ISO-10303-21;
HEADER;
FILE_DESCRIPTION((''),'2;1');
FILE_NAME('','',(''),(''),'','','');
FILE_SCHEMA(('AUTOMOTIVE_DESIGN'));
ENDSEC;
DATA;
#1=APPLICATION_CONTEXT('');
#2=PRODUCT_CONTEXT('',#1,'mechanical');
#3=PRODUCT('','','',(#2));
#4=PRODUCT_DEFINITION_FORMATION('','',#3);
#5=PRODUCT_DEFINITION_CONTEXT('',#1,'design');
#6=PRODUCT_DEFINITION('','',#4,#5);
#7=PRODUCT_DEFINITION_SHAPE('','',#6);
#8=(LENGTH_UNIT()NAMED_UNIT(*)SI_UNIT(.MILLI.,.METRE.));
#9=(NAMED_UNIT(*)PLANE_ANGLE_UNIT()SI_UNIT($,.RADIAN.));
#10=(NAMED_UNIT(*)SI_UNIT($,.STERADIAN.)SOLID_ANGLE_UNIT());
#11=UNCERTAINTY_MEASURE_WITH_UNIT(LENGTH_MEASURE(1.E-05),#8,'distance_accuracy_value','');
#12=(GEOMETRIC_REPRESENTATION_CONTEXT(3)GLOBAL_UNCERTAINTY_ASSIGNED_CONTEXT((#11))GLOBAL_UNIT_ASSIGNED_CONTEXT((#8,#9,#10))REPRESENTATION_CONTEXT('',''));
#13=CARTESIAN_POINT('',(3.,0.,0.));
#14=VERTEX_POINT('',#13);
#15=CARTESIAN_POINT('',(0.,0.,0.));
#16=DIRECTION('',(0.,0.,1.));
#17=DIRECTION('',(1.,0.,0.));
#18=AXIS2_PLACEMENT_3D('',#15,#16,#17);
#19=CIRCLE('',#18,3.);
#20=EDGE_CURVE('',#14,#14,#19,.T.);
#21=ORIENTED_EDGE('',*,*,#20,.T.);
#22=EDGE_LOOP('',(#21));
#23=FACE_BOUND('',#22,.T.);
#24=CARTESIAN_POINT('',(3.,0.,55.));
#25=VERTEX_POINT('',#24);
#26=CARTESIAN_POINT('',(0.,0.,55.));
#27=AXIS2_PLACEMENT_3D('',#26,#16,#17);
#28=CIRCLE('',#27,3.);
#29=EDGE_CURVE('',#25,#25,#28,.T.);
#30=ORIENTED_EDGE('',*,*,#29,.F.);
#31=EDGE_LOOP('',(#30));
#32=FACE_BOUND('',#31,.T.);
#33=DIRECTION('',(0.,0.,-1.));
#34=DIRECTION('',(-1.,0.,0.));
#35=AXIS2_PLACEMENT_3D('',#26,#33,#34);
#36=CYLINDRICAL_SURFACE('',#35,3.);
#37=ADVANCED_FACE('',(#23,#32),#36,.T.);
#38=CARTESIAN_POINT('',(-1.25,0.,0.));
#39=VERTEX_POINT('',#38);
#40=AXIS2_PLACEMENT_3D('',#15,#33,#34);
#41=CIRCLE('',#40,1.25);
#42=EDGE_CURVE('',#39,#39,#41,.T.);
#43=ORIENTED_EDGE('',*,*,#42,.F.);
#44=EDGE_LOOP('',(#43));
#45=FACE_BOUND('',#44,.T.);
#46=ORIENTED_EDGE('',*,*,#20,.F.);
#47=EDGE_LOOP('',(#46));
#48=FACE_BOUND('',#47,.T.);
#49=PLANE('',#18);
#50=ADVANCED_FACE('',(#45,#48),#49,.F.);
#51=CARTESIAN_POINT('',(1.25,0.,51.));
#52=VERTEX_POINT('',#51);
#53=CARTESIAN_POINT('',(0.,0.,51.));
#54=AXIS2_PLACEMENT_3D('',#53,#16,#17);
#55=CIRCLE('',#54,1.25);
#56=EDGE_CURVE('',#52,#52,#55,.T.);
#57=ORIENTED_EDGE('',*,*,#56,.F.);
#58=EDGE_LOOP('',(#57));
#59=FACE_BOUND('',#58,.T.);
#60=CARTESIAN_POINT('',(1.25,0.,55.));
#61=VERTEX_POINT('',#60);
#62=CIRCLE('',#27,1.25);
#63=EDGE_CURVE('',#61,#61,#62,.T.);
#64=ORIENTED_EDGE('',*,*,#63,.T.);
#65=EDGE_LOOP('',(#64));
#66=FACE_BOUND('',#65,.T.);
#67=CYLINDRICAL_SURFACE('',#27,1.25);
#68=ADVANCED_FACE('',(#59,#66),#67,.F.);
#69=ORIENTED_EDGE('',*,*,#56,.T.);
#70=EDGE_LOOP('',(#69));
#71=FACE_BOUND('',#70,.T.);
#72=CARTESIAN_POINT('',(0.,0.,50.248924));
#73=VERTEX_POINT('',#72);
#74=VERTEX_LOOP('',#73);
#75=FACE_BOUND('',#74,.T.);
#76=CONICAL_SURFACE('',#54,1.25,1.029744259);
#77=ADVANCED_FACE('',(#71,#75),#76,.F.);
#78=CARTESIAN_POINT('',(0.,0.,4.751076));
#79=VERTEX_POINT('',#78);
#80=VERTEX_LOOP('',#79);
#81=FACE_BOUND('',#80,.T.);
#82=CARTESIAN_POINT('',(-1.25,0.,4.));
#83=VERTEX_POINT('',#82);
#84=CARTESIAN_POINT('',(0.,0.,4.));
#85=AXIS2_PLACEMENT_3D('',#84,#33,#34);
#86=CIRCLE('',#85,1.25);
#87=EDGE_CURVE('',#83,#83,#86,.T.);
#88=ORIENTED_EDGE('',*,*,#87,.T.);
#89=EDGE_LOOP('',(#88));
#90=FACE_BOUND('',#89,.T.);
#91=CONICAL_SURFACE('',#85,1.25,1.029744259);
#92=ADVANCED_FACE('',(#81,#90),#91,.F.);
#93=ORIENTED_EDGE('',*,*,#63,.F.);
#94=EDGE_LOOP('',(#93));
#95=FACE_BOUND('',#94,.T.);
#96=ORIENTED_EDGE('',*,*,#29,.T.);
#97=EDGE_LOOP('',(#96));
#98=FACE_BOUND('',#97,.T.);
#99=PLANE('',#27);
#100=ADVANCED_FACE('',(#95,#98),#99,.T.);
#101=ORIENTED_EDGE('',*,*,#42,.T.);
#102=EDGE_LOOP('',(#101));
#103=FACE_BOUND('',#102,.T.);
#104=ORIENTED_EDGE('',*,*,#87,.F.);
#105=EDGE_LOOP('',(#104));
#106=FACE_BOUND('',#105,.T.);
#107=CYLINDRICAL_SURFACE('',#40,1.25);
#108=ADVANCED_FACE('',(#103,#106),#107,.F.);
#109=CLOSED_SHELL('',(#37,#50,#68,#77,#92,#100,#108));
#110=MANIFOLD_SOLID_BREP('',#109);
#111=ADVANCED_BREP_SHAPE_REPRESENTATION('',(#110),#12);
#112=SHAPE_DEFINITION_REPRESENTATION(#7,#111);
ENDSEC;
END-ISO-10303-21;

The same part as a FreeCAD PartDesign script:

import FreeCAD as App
import Part
import Sketcher
Q = App.Units.Quantity

doc = App.newDocument("Part")
body = doc.addObject("PartDesign::Body", "Body")

# Sketch on XY plane
sketch1 = body.newObject("Sketcher::SketchObject", "Sketch")
sketch1.AttachmentSupport = (doc.getObject("XY_Plane"), [""])
sketch1.MapMode = "FlatFace"
sketch1.addGeometry(Part.Circle(App.Vector(0, 0, 0), App.Vector(0, 0, 1), 3), False)
sketch1.addConstraint([
    Sketcher.Constraint("Coincident", 0, 3, -1, 1),
    Sketcher.Constraint("Diameter", 0, Q("6 mm")),
])
pad1 = body.newObject("PartDesign::Pad", "Pad")
pad1.Profile = sketch1
pad1.Length = 55

# Sketch on XY plane
sketch2 = body.newObject("Sketcher::SketchObject", "Sketch001")
sketch2.AttachmentSupport = (doc.getObject("XY_Plane"), [""])
sketch2.MapMode = "FlatFace"
sketch2.AttachmentOffset = App.Placement(App.Vector(0, 0, 55), App.Rotation())
sketch2.addGeometry(Part.Circle(App.Vector(0, 0, 0), App.Vector(0, 0, 1), 1.2), False)
sketch2.addConstraint([
    Sketcher.Constraint("Coincident", 0, 3, -1, 1),
    Sketcher.Constraint("Diameter", 0, Q("2.5 mm")),
])
doc.recompute()
hole = body.newObject("PartDesign::Hole", "Hole")
hole.Profile = sketch2
hole.ThreadType = "None"
hole.Diameter = 2.5
hole.DepthType = "Dimension"
hole.Depth = 4
hole.DrillPoint = "Angled"
hole.DrillPointAngle = 118

# Sketch on XY plane
sketch3 = body.newObject("Sketcher::SketchObject", "Sketch002")
sketch3.AttachmentSupport = (doc.getObject("XY_Plane"), [""])
sketch3.MapMode = "FlatFace"
sketch3.addGeometry(Part.Circle(App.Vector(0, 0, 0), App.Vector(0, 0, 1), 1.2), False)
sketch3.addConstraint([
    Sketcher.Constraint("Coincident", 0, 3, -1, 1),
    Sketcher.Constraint("Diameter", 0, Q("2.5 mm")),
])
doc.recompute()
hole2 = body.newObject("PartDesign::Hole", "Hole001")
hole2.Profile = sketch3
hole2.ThreadType = "None"
hole2.Diameter = 2.5
hole2.DepthType = "Dimension"
hole2.Depth = 4
hole2.DrillPoint = "Angled"
hole2.DrillPointAngle = 118
hole2.Reversed = True

doc.recompute()
